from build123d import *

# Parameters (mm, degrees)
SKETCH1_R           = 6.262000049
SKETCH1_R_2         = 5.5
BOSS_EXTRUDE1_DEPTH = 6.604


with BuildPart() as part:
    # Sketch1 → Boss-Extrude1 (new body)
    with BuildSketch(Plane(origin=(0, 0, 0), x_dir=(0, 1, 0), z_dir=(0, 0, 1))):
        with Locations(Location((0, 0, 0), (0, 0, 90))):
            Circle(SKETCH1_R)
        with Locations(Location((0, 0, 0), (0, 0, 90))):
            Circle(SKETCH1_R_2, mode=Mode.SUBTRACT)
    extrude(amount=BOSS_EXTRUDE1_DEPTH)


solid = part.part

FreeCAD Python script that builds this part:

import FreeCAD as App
import Part
import Sketcher

doc = App.newDocument("Part")
params = doc.addObject("Spreadsheet::Sheet", "Params")
for row, (alias, value) in enumerate([
    ("sketch1_diameter", "11 mm"),
    ("pad1_length", "6.604 mm"),
], start=1):
    params.set(f"A{row}", alias)
    params.set(f"B{row}", "=" + value)
    params.setAlias(f"B{row}", alias)

body = doc.addObject("PartDesign::Body", "Body")

# Sketch on XY plane
sketch1 = body.newObject("Sketcher::SketchObject", "Sketch")
sketch1.AttachmentSupport = (doc.getObject("XY_Plane"), [""])
sketch1.MapMode = "FlatFace"
sketch1.addGeometry(Part.Circle(App.Vector(0, 0, 0), App.Vector(0, 0, 1), 6), False)
sketch1.addGeometry(Part.Circle(App.Vector(0, 0, 0), App.Vector(0, 0, 1), 6), False)
sketch1.addConstraint(Sketcher.Constraint("Coincident", 0, 3, -1, 1))
sketch1.addConstraint(Sketcher.Constraint("Coincident", 1, 3, -1, 1))
sketch1.addConstraint(Sketcher.Constraint("Diameter", 1, 11.0))
sketch1.addConstraint(Sketcher.Constraint("Diameter", 0, 12.524))
sketch1.setExpression("Constraints[2]", "Params.sketch1_diameter")
pad1 = body.newObject("PartDesign::Pad", "Pad")
pad1.Profile = sketch1
pad1.setExpression("Length", "Params.pad1_length")

doc.recompute()
